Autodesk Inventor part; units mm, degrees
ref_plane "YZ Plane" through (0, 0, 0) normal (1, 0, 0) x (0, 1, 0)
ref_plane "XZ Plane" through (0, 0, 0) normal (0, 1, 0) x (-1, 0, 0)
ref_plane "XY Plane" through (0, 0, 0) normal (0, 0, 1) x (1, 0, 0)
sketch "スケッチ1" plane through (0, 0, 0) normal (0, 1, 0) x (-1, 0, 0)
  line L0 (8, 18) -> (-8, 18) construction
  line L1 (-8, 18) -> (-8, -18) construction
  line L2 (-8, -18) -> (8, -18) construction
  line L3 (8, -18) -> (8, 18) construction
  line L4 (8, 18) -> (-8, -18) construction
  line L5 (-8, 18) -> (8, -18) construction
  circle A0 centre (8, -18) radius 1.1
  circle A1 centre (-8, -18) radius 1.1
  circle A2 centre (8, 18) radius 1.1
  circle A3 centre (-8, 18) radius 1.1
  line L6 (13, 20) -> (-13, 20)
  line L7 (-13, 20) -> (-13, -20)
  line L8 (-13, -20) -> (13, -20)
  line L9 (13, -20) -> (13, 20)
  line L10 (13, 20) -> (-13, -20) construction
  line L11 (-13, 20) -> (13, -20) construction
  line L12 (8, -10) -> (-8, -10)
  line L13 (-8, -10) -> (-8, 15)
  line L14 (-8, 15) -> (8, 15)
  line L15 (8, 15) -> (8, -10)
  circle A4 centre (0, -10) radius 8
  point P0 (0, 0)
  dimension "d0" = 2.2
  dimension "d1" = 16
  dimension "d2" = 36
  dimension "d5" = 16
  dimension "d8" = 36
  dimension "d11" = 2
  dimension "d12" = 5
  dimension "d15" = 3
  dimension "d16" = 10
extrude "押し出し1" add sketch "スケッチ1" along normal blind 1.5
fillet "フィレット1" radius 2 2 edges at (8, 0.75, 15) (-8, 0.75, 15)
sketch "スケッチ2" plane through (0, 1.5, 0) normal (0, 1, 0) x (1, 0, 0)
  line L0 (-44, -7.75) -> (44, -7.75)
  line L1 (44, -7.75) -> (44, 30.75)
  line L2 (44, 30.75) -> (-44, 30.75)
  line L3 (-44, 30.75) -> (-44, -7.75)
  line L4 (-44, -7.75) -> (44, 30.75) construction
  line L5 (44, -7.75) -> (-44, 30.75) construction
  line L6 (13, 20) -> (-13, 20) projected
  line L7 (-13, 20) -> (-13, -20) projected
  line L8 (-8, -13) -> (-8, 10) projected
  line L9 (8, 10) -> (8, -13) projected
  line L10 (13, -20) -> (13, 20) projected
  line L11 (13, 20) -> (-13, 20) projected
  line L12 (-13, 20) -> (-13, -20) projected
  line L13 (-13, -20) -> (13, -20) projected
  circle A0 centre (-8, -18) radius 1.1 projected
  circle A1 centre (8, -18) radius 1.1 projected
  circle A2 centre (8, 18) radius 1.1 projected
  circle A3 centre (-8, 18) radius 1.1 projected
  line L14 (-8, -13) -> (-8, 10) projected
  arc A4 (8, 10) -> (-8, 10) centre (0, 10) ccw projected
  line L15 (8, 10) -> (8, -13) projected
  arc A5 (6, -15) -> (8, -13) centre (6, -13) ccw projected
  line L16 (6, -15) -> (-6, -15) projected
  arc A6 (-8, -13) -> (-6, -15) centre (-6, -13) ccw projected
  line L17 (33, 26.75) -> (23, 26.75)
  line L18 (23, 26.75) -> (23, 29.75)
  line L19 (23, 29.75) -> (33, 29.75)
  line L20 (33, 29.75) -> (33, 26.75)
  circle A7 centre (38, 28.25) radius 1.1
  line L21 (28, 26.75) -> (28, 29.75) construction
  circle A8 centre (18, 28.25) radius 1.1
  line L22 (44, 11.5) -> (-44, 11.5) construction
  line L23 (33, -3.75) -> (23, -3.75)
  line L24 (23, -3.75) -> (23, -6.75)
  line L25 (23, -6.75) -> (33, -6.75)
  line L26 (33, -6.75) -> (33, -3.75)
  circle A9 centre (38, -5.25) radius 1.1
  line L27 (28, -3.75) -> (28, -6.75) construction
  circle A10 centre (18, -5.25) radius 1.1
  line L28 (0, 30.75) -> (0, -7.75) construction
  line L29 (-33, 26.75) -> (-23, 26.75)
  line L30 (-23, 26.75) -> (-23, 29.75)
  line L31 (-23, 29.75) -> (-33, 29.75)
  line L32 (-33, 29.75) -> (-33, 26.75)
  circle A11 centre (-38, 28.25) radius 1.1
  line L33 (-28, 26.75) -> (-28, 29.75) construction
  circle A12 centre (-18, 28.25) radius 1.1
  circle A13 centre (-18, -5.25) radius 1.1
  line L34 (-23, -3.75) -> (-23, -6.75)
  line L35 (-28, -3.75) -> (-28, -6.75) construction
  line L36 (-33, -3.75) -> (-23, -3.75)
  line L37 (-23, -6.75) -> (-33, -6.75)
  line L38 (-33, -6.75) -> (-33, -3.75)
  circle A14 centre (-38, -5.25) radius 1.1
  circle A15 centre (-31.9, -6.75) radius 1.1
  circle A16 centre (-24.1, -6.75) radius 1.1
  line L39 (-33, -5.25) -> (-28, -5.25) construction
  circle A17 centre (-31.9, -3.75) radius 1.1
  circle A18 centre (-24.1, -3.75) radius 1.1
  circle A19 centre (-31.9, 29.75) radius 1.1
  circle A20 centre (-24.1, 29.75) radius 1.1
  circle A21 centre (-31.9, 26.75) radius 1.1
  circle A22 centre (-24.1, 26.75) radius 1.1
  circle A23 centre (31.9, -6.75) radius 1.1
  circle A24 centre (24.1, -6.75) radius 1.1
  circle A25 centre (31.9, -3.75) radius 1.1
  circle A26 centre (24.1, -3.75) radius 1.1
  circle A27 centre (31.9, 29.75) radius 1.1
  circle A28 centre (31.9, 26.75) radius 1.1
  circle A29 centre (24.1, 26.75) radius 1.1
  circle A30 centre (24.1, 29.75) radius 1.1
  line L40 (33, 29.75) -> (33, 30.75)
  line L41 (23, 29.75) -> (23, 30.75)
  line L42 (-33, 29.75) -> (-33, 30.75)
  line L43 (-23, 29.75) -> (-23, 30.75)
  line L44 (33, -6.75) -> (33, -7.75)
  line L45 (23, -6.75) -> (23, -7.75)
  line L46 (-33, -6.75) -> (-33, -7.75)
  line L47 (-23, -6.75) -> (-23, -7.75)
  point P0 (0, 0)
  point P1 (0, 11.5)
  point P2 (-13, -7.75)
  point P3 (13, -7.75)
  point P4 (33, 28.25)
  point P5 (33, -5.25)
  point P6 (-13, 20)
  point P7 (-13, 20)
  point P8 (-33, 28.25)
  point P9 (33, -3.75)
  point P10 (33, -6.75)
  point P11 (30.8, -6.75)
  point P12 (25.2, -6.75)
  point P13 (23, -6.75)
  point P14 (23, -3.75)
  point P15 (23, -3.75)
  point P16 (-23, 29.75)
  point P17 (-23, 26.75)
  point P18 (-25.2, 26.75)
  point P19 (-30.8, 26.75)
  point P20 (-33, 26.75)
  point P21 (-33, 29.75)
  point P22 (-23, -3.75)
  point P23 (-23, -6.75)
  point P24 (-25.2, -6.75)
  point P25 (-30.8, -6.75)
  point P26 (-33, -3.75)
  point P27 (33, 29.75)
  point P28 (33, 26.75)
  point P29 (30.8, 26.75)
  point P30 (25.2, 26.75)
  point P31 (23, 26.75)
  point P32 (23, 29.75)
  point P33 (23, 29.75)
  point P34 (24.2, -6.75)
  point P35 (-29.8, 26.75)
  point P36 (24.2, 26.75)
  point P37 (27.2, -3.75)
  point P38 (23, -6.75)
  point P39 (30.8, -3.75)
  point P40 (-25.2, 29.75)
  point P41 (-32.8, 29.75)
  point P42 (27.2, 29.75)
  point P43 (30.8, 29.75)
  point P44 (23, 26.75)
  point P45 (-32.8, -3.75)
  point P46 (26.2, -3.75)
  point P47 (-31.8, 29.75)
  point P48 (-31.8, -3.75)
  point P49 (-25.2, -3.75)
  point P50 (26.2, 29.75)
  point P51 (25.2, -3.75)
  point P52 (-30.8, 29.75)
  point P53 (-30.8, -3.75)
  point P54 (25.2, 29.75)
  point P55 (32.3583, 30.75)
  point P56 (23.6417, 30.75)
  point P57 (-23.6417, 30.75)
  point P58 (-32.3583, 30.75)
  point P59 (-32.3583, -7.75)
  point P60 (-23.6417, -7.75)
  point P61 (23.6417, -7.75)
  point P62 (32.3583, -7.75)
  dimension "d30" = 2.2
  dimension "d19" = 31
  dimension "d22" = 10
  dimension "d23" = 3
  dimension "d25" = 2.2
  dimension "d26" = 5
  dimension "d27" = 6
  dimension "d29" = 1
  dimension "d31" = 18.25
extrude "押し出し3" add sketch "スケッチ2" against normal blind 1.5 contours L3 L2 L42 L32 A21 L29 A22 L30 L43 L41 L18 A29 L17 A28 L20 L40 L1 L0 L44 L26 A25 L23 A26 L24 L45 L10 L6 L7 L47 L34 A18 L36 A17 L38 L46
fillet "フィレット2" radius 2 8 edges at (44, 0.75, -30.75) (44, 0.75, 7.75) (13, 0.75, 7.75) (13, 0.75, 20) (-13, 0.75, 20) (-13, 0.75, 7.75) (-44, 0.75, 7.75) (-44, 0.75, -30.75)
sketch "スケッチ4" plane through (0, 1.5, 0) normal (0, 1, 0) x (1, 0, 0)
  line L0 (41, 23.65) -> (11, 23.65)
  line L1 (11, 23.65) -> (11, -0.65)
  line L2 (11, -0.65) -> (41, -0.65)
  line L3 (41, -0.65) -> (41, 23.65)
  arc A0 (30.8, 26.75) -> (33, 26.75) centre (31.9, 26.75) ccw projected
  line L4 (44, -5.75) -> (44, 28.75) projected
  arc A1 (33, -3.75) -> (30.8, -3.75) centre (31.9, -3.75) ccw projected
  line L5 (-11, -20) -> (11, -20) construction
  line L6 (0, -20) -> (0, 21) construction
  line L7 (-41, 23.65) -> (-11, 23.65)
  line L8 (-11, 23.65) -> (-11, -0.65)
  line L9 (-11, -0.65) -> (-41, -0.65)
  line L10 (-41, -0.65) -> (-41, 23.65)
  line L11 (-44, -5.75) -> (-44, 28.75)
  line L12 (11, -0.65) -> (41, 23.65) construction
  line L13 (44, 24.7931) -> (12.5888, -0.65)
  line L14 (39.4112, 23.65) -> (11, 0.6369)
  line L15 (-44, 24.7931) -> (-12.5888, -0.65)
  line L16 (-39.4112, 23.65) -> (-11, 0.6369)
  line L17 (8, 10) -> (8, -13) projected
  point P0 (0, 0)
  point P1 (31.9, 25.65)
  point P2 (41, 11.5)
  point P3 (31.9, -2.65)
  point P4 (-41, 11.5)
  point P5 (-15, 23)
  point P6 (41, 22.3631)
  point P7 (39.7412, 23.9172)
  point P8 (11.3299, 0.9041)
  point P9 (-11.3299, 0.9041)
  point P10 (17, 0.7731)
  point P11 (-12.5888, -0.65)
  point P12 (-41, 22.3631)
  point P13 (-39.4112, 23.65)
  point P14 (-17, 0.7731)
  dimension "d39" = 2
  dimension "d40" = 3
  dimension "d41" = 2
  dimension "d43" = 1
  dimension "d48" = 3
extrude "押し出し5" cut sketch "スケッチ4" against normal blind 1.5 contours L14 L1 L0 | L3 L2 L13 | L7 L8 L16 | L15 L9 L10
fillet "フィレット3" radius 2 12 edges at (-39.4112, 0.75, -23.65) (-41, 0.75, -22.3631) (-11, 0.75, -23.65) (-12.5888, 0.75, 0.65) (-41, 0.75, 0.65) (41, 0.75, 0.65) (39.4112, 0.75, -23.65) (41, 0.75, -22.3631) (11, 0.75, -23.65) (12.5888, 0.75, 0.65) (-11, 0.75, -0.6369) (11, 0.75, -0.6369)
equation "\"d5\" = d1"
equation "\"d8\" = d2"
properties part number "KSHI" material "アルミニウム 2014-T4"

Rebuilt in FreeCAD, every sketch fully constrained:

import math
import FreeCAD as App
import Part
import Sketcher

V = App.Vector


def edges_at(feature, points):
    """Names of the edges that pass closest to the given points."""
    edges = feature.Shape.Edges
    near = lambda p: min(range(len(edges)), key=lambda i: edges[i].distToShape(Part.Vertex(*p))[0])
    return sorted({f"Edge{near(p) + 1}" for p in points})

doc = App.newDocument("Part")
body = doc.addObject("PartDesign::Body", "Body")

# Sketch on XZ plane
sketch1 = doc.addObject("Sketcher::SketchObject", "Sketch")
body.addObject(sketch1)
sketch1.AttachmentSupport = (doc.XZ_Plane, [""])
sketch1.MapMode = "FlatFace"
sketch1.addGeometry([
    Part.LineSegment(V(-13, -20, 0), V(-13, 20, 0)),  # 0
    Part.LineSegment(V(-13, 20, 0), V(13, 20, 0)),  # 1
    Part.LineSegment(V(13, 20, 0), V(13, -20, 0)),  # 2
    Part.LineSegment(V(13, -20, 0), V(-13, -20, 0)),  # 3
    Part.Circle(V(8, -18, 0), V(0, 0, 1), 1.1),  # 4
    Part.Circle(V(-8, -18, 0), V(0, 0, 1), 1.1),  # 5
    Part.LineSegment(V(-8, 15, 0), V(-8, -10, 0)),  # 6
    Part.ArcOfCircle(Part.Circle(V(0, -10, 0), V(0, 0, 1), 8), math.radians(180), math.radians(360)),  # 7
    Part.LineSegment(V(8, -10, 0), V(8, 15, 0)),  # 8
    Part.LineSegment(V(8, 15, 0), V(-8, 15, 0)),  # 9
    Part.Circle(V(8, 18, 0), V(0, 0, 1), 1.1),  # 10
    Part.Circle(V(-8, 18, 0), V(0, 0, 1), 1.1),  # 11
], False)
sketch1.addConstraint([
    Sketcher.Constraint("Coincident", 0, 2, 1, 1),
    Sketcher.Constraint("Coincident", 1, 2, 2, 1),
    Sketcher.Constraint("Coincident", 2, 2, 3, 1),
    Sketcher.Constraint("Coincident", 3, 2, 0, 1),
    Sketcher.Constraint("Tangent", 6, 2, 7, 1),
    Sketcher.Constraint("Tangent", 7, 2, 8, 1),
    Sketcher.Constraint("Coincident", 8, 2, 9, 1),
    Sketcher.Constraint("Coincident", 9, 2, 6, 1),
    Sketcher.Constraint("Vertical", 0),
    Sketcher.Constraint("Horizontal", 1),
    Sketcher.Constraint("Vertical", 2),
    Sketcher.Constraint("Horizontal", 3),
    Sketcher.Constraint("Vertical", 6),
    Sketcher.Constraint("Vertical", 8),
    Sketcher.Constraint("Horizontal", 9),
    Sketcher.Constraint("Equal", 4, 5),
    Sketcher.Constraint("Equal", 5, 10),
    Sketcher.Constraint("Equal", 10, 11),
    Sketcher.Constraint("Symmetric", 5, 3, 10, 3, -1, 1),
    Sketcher.Constraint("Symmetric", 4, 3, 11, 3, -1, 1),
    Sketcher.Constraint("Symmetric", 0, 2, 2, 2, -1, 1),
    Sketcher.Constraint("Symmetric", 4, 3, 5, 3, -2),
    Sketcher.Constraint("PointOnObject", 7, 3, -2),
    Sketcher.Constraint("Vertical", 11, 3, 6, 2),
    Sketcher.Constraint("Radius", 7, 8.0),
    Sketcher.Constraint("Diameter", 4, 2.2),
    Sketcher.Constraint("DistanceY", 7, 3, -1, 1, 10.0),
    Sketcher.Constraint("DistanceY", 4, 3, 10, 3, 36.0),
    Sketcher.Constraint("DistanceX", 0, 2, 11, 3, 5.0),
    Sketcher.Constraint("DistanceY", 11, 3, 0, 2, 2.0),
    Sketcher.Constraint("DistanceY", 8, 2, 10, 3, 3.0),
])
pad1 = doc.addObject("PartDesign::Pad", "Pad")
body.addObject(pad1)
pad1.Profile = sketch1
pad1.Length = 1.5
pad1.Reversed = True
doc.recompute()

fillet = doc.addObject("PartDesign::Fillet", "Fillet")
body.addObject(fillet)
fillet.Base = (pad1, edges_at(pad1, [(8, 0.75, 15), (-8, 0.75, 15)]))
fillet.Radius = 2

# Sketch on XZ plane
sketch2 = doc.addObject("Sketcher::SketchObject", "Sketch001")
body.addObject(sketch2)
sketch2.AttachmentSupport = (doc.XZ_Plane, [""])
sketch2.MapMode = "FlatFace"
sketch2.AttachmentOffset = App.Placement(V(0, 0, -1.5), App.Rotation())
sketch2.addGeometry([
    Part.LineSegment(V(-44, -30.75, 0), V(-44, 7.75, 0)),  # 0
    Part.LineSegment(V(-44, 7.75, 0), V(-33, 7.75, 0)),  # 1
    Part.LineSegment(V(-33, 7.75, 0), V(-33, 3.75, 0)),  # 2
    Part.ArcOfCircle(Part.Circle(V(-31.9, 3.75, 0), V(0, 0, 1), 1.1), math.radians(180), math.radians(360)),  # 3
    Part.LineSegment(V(-30.8, 3.75, 0), V(-25.2, 3.75, 0)),  # 4
    Part.ArcOfCircle(Part.Circle(V(-24.1, 3.75, 0), V(0, 0, 1), 1.1), math.radians(180), math.radians(360)),  # 5
    Part.LineSegment(V(-23, 3.75, 0), V(-23, 7.75, 0)),  # 6
    Part.LineSegment(V(-23, 7.75, 0), V(-13, 7.75, 0)),  # 7
    Part.LineSegment(V(-13, 7.75, 0), V(-13, -20, 0)),  # 8
    Part.LineSegment(V(-13, -20, 0), V(13, -20, 0)),  # 9
    Part.LineSegment(V(13, -20, 0), V(13, 7.75, 0)),  # 10
    Part.LineSegment(V(13, 7.75, 0), V(23, 7.75, 0)),  # 11
    Part.LineSegment(V(23, 7.75, 0), V(23, 3.75, 0)),  # 12
    Part.ArcOfCircle(Part.Circle(V(24.1, 3.75, 0), V(0, 0, 1), 1.1), math.radians(180), math.radians(360)),  # 13
    Part.LineSegment(V(25.2, 3.75, 0), V(30.8, 3.75, 0)),  # 14
    Part.ArcOfCircle(Part.Circle(V(31.9, 3.75, 0), V(0, 0, 1), 1.1), math.radians(180), math.radians(360)),  # 15
    Part.LineSegment(V(33, 3.75, 0), V(33, 7.75, 0)),  # 16
    Part.LineSegment(V(33, 7.75, 0), V(44, 7.75, 0)),  # 17
    Part.LineSegment(V(44, 7.75, 0), V(44, -30.75, 0)),  # 18
    Part.LineSegment(V(44, -30.75, 0), V(33, -30.75, 0)),  # 19
    Part.LineSegment(V(33, -30.75, 0), V(33, -26.75, 0)),  # 20
    Part.ArcOfCircle(Part.Circle(V(31.9, -26.75, 0), V(0, 0, 1), 1.1), math.radians(0), math.radians(180)),  # 21
    Part.LineSegment(V(30.8, -26.75, 0), V(25.2, -26.75, 0)),  # 22
    Part.ArcOfCircle(Part.Circle(V(24.1, -26.75, 0), V(0, 0, 1), 1.1), math.radians(0), math.radians(180)),  # 23
    Part.LineSegment(V(23, -26.75, 0), V(23, -30.75, 0)),  # 24
    Part.LineSegment(V(23, -30.75, 0), V(-23, -30.75, 0)),  # 25
    Part.LineSegment(V(-23, -30.75, 0), V(-23, -26.75, 0)),  # 26
    Part.ArcOfCircle(Part.Circle(V(-24.1, -26.75, 0), V(0, 0, 1), 1.1), math.radians(0), math.radians(180)),  # 27
    Part.LineSegment(V(-25.2, -26.75, 0), V(-30.8, -26.75, 0)),  # 28
    Part.ArcOfCircle(Part.Circle(V(-31.9, -26.75, 0), V(0, 0, 1), 1.1), math.radians(0), math.radians(180)),  # 29
    Part.LineSegment(V(-33, -26.75, 0), V(-33, -30.75, 0)),  # 30
    Part.LineSegment(V(-33, -30.75, 0), V(-44, -30.75, 0)),  # 31
    Part.Circle(V(-38, 5.25, 0), V(0, 0, 1), 1.1),  # 32
    Part.Circle(V(-18, 5.25, 0), V(0, 0, 1), 1.1),  # 33
    Part.Circle(V(18, 5.25, 0), V(0, 0, 1), 1.1),  # 34
    Part.Circle(V(38, 5.25, 0), V(0, 0, 1), 1.1),  # 35
    Part.Circle(V(-38, -28.25, 0), V(0, 0, 1), 1.1),  # 36
    Part.Circle(V(-18, -28.25, 0), V(0, 0, 1), 1.1),  # 37
    Part.Circle(V(18, -28.25, 0), V(0, 0, 1), 1.1),  # 38
    Part.Circle(V(38, -28.25, 0), V(0, 0, 1), 1.1),  # 39
], False)
sketch2.addConstraint([
    Sketcher.Constraint("Coincident", 0, 2, 1, 1),
    Sketcher.Constraint("Coincident", 1, 2, 2, 1),
    Sketcher.Constraint("Tangent", 2, 2, 3, 1),
    Sketcher.Constraint("Coincident", 3, 2, 4, 1),
    Sketcher.Constraint("Coincident", 4, 2, 5, 1),
    Sketcher.Constraint("Tangent", 5, 2, 6, 1),
    Sketcher.Constraint("Coincident", 6, 2, 7, 1),
    Sketcher.Constraint("Coincident", 7, 2, 8, 1),
    Sketcher.Constraint("Coincident", 8, 2, 9, 1),
    Sketcher.Constraint("Coincident", 9, 2, 10, 1),
    Sketcher.Constraint("Coincident", 10, 2, 11, 1),
    Sketcher.Constraint("Coincident", 11, 2, 12, 1),
    Sketcher.Constraint("Tangent", 12, 2, 13, 1),
    Sketcher.Constraint("Coincident", 13, 2, 14, 1),
    Sketcher.Constraint("Coincident", 14, 2, 15, 1),
    Sketcher.Constraint("Tangent", 15, 2, 16, 1),
    Sketcher.Constraint("Coincident", 16, 2, 17, 1),
    Sketcher.Constraint("Coincident", 17, 2, 18, 1),
    Sketcher.Constraint("Coincident", 18, 2, 19, 1),
    Sketcher.Constraint("Coincident", 19, 2, 20, 1),
    Sketcher.Constraint("Tangent", 20, 2, 21, 1),
    Sketcher.Constraint("Coincident", 21, 2, 22, 1),
    Sketcher.Constraint("Coincident", 22, 2, 23, 1),
    Sketcher.Constraint("Tangent", 23, 2, 24, 1),
    Sketcher.Constraint("Coincident", 24, 2, 25, 1),
    Sketcher.Constraint("Coincident", 25, 2, 26, 1),
    Sketcher.Constraint("Tangent", 26, 2, 27, 1),
    Sketcher.Constraint("Coincident", 27, 2, 28, 1),
    Sketcher.Constraint("Coincident", 28, 2, 29, 1),
    Sketcher.Constraint("Tangent", 29, 2, 30, 1),
    Sketcher.Constraint("Coincident", 30, 2, 31, 1),
    Sketcher.Constraint("Coincident", 31, 2, 0, 1),
    Sketcher.Constraint("Vertical", 0),
    Sketcher.Constraint("Horizontal", 1),
    Sketcher.Constraint("Vertical", 2),
    Sketcher.Constraint("Horizontal", 4),
    Sketcher.Constraint("Vertical", 6),
    Sketcher.Constraint("Horizontal", 7),
    Sketcher.Constraint("Vertical", 8),
    Sketcher.Constraint("Horizontal", 9),
    Sketcher.Constraint("Vertical", 10),
    Sketcher.Constraint("Horizontal", 11),
    Sketcher.Constraint("Vertical", 12),
    Sketcher.Constraint("Horizontal", 14),
    Sketcher.Constraint("Vertical", 16),
    Sketcher.Constraint("Horizontal", 17),
    Sketcher.Constraint("Vertical", 18),
    Sketcher.Constraint("Horizontal", 19),
    Sketcher.Constraint("Vertical", 20),
    Sketcher.Constraint("Horizontal", 22),
    Sketcher.Constraint("Vertical", 24),
    Sketcher.Constraint("Horizontal", 25),
    Sketcher.Constraint("Vertical", 26),
    Sketcher.Constraint("Horizontal", 28),
    Sketcher.Constraint("Vertical", 30),
    Sketcher.Constraint("Horizontal", 31),
    Sketcher.Constraint("Equal", 3, 5),
    Sketcher.Constraint("Equal", 5, 13),
    Sketcher.Constraint("Equal", 13, 15),
    Sketcher.Constraint("Equal", 15, 21),
    Sketcher.Constraint("Equal", 21, 23),
    Sketcher.Constraint("Equal", 23, 27),
    Sketcher.Constraint("Equal", 27, 29),
    Sketcher.Constraint("Equal", 29, 32),
    Sketcher.Constraint("Equal", 32, 33),
    Sketcher.Constraint("Equal", 33, 34),
    Sketcher.Constraint("Equal", 34, 35),
    Sketcher.Constraint("Equal", 35, 36),
    Sketcher.Constraint("Equal", 36, 37),
    Sketcher.Constraint("Equal", 37, 38),
    Sketcher.Constraint("Equal", 38, 39),
    Sketcher.Constraint("Symmetric", 5, 3, 13, 3, -2),
    Sketcher.Constraint("Symmetric", 3, 3, 15, 3, -2),
    Sketcher.Constraint("Symmetric", 23, 3, 27, 3, -2),
    Sketcher.Constraint("Symmetric", 21, 3, 29, 3, -2),
    Sketcher.Constraint("Symmetric", 33, 3, 34, 3, -2),
    Sketcher.Constraint("Symmetric", 32, 3, 35, 3, -2),
    Sketcher.Constraint("Symmetric", 37, 3, 38, 3, -2),
    Sketcher.Constraint("Symmetric", 36, 3, 39, 3, -2),
    Sketcher.Constraint("Symmetric", 7, 2, 10, 2, -2),
    Sketcher.Constraint("Symmetric", 0, 2, 17, 2, -2),
    Sketcher.Constraint("Horizontal", 3, 3, 5, 3),
    Sketcher.Constraint("Horizontal", 21, 3, 23, 3),
    Sketcher.Constraint("Horizontal", 32, 3, 33, 3),
    Sketcher.Constraint("Horizontal", 36, 3, 37, 3),
    Sketcher.Constraint("Horizontal", 2, 2, 3, 2),
    Sketcher.Constraint("Horizontal", 1, 2, 6, 2),
    Sketcher.Constraint("Horizontal", 12, 2, 13, 2),
    Sketcher.Constraint("Horizontal", 20, 2, 21, 2),
    Sketcher.Constraint("Horizontal", 19, 2, 24, 2),
    Sketcher.Constraint("Horizontal", 26, 2, 27, 2),
    Sketcher.Constraint("Horizontal", 25, 2, 30, 2),
    Sketcher.Constraint("Vertical", 15, 3, 21, 3),
    Sketcher.Constraint("Vertical", 13, 3, 23, 3),
    Sketcher.Constraint("Vertical", 32, 3, 36, 3),
    Sketcher.Constraint("Vertical", 33, 3, 37, 3),
    Sketcher.Constraint("Equal", 16, 20),
    Sketcher.Constraint("Diameter", 32, 2.2),
    Sketcher.Constraint("DistanceX", 7, 1, 7, 2, 10.0),
    Sketcher.Constraint("DistanceX", 0, 2, 32, 3, 6.0),
    Sketcher.Constraint("DistanceX", 32, 3, 1, 2, 5.0),
    Sketcher.Constraint("DistanceX", 5, 2, 33, 3, 5.0),
    Sketcher.Constraint("DistanceX", 9, 2, 18, 2, 31.0),
    Sketcher.Constraint("DistanceX", 9, 1, 9, 2, 26.0),
    Sketcher.Constraint("DistanceY", 2, 2, 2, 1, 4.0),
    Sketcher.Constraint("DistanceY", 0, 1, 0, 2, 38.5),
    Sketcher.Constraint("DistanceY", 8, 2, -1, 1, 20.0),
    Sketcher.Constraint("DistanceY", 29, 3, 32, 3, 32.0),
    Sketcher.Constraint("DistanceY", 36, 3, 3, 3, 32.0),
    Sketcher.Constraint("DistanceY", 8, 2, 8, 1, 27.75),
])
pad2 = doc.addObject("PartDesign::Pad", "Pad001")
body.addObject(pad2)
pad2.Profile = sketch2
pad2.Length = 1.5
doc.recompute()

fillet2 = doc.addObject("PartDesign::Fillet", "Fillet001")
body.addObject(fillet2)
fillet2.Base = (pad2, edges_at(pad2, [
    (44, 0.75, -30.75),
    (44, 0.75, 7.75),
    (13, 0.75, 7.75),
    (13, 0.75, 20),
    (-13, 0.75, 20),
    (-13, 0.75, 7.75),
    (-44, 0.75, 7.75),
    (-44, 0.75, -30.75),
]))
fillet2.Radius = 2

# Sketch on XZ plane
sketch3 = doc.addObject("Sketcher::SketchObject", "Sketch002")
body.addObject(sketch3)
sketch3.AttachmentSupport = (doc.XZ_Plane, [""])
sketch3.MapMode = "FlatFace"
sketch3.AttachmentOffset = App.Placement(V(0, 0, -1.5), App.Rotation())
sketch3.addGeometry([
    Part.LineSegment(V(11, -0.6369, 0), V(39.4112, -23.65, 0)),  # 0
    Part.LineSegment(V(39.4112, -23.65, 0), V(11, -23.65, 0)),  # 1
    Part.LineSegment(V(11, -23.65, 0), V(11, -0.6369, 0)),  # 2
    Part.LineSegment(V(41, 0.65, 0), V(41, -22.363097, 0)),  # 3
    Part.LineSegment(V(41, -22.363097, 0), V(12.5888, 0.65, 0)),  # 4
    Part.LineSegment(V(12.5888, 0.65, 0), V(41, 0.65, 0)),  # 5
    Part.LineSegment(V(-11, -23.65, 0), V(-39.4112, -23.65, 0)),  # 6
    Part.LineSegment(V(-39.4112, -23.65, 0), V(-11, -0.6369, 0)),  # 7
    Part.LineSegment(V(-11, -0.6369, 0), V(-11, -23.65, 0)),  # 8
    Part.LineSegment(V(-12.5888, 0.65, 0), V(-41, -22.363097, 0)),  # 9
    Part.LineSegment(V(-41, -22.363097, 0), V(-41, 0.65, 0)),  # 10
    Part.LineSegment(V(-41, 0.65, 0), V(-12.5888, 0.65, 0)),  # 11
], False)
sketch3.addConstraint([
    Sketcher.Constraint("Coincident", 0, 2, 1, 1),
    Sketcher.Constraint("Coincident", 1, 2, 2, 1),
    Sketcher.Constraint("Coincident", 2, 2, 0, 1),
    Sketcher.Constraint("Coincident", 3, 2, 4, 1),
    Sketcher.Constraint("Coincident", 4, 2, 5, 1),
    Sketcher.Constraint("Coincident", 5, 2, 3, 1),
    Sketcher.Constraint("Coincident", 6, 2, 7, 1),
    Sketcher.Constraint("Coincident", 7, 2, 8, 1),
    Sketcher.Constraint("Coincident", 8, 2, 6, 1),
    Sketcher.Constraint("Coincident", 9, 2, 10, 1),
    Sketcher.Constraint("Coincident", 10, 2, 11, 1),
    Sketcher.Constraint("Coincident", 11, 2, 9, 1),
    Sketcher.Constraint("Horizontal", 1),
    Sketcher.Constraint("Vertical", 2),
    Sketcher.Constraint("Vertical", 3),
    Sketcher.Constraint("Horizontal", 5),
    Sketcher.Constraint("Horizontal", 6),
    Sketcher.Constraint("Vertical", 8),
    Sketcher.Constraint("Vertical", 10),
    Sketcher.Constraint("Horizontal", 11),
    Sketcher.Constraint("Symmetric", 0, 2, 6, 2, -2),
    Sketcher.Constraint("Symmetric", 2, 2, 7, 2, -2),
    Sketcher.Constraint("Symmetric", 3, 2, 9, 2, -2),
    Sketcher.Constraint("Symmetric", 4, 2, 11, 2, -2),
    Sketcher.Constraint("Parallel", 0, 4),
    Sketcher.Constraint("Equal", 1, 5),
    Sketcher.Constraint("DistanceX", -1, 1, 1, 2, 11.0),
    Sketcher.Constraint("DistanceX", -1, 1, 3, 2, 41.0),
    Sketcher.Constraint("DistanceY", 1, 2, 4, 2, 24.3),
    Sketcher.Constraint("DistanceY", 2, 1, 2, 2, 23.013),
    Sketcher.Constraint("DistanceY", 0, 2, -1, 1, 23.65),
    Sketcher.Constraint("DistanceX", 1, 2, 1, 1, 28.4112),
])
pocket1 = doc.addObject("PartDesign::Pocket", "Pocket")
body.addObject(pocket1)
pocket1.Profile = sketch3
pocket1.Length = 1.5
pocket1.Reversed = True
doc.recompute()

fillet3 = doc.addObject("PartDesign::Fillet", "Fillet002")
body.addObject(fillet3)
fillet3.Base = (pocket1, edges_at(pocket1, [
    (-39.411, 0.75, -23.65),
    (-41, 0.75, -22.363),
    (-11, 0.75, -23.65),
    (-12.589, 0.75, 0.65),
    (-41, 0.75, 0.65),
    (41, 0.75, 0.65),
    (39.411, 0.75, -23.65),
    (41, 0.75, -22.363),
    (11, 0.75, -23.65),
    (12.589, 0.75, 0.65),
    (-11, 0.75, -0.637),
    (11, 0.75, -0.637),
]))
fillet3.Radius = 2

doc.recompute()
